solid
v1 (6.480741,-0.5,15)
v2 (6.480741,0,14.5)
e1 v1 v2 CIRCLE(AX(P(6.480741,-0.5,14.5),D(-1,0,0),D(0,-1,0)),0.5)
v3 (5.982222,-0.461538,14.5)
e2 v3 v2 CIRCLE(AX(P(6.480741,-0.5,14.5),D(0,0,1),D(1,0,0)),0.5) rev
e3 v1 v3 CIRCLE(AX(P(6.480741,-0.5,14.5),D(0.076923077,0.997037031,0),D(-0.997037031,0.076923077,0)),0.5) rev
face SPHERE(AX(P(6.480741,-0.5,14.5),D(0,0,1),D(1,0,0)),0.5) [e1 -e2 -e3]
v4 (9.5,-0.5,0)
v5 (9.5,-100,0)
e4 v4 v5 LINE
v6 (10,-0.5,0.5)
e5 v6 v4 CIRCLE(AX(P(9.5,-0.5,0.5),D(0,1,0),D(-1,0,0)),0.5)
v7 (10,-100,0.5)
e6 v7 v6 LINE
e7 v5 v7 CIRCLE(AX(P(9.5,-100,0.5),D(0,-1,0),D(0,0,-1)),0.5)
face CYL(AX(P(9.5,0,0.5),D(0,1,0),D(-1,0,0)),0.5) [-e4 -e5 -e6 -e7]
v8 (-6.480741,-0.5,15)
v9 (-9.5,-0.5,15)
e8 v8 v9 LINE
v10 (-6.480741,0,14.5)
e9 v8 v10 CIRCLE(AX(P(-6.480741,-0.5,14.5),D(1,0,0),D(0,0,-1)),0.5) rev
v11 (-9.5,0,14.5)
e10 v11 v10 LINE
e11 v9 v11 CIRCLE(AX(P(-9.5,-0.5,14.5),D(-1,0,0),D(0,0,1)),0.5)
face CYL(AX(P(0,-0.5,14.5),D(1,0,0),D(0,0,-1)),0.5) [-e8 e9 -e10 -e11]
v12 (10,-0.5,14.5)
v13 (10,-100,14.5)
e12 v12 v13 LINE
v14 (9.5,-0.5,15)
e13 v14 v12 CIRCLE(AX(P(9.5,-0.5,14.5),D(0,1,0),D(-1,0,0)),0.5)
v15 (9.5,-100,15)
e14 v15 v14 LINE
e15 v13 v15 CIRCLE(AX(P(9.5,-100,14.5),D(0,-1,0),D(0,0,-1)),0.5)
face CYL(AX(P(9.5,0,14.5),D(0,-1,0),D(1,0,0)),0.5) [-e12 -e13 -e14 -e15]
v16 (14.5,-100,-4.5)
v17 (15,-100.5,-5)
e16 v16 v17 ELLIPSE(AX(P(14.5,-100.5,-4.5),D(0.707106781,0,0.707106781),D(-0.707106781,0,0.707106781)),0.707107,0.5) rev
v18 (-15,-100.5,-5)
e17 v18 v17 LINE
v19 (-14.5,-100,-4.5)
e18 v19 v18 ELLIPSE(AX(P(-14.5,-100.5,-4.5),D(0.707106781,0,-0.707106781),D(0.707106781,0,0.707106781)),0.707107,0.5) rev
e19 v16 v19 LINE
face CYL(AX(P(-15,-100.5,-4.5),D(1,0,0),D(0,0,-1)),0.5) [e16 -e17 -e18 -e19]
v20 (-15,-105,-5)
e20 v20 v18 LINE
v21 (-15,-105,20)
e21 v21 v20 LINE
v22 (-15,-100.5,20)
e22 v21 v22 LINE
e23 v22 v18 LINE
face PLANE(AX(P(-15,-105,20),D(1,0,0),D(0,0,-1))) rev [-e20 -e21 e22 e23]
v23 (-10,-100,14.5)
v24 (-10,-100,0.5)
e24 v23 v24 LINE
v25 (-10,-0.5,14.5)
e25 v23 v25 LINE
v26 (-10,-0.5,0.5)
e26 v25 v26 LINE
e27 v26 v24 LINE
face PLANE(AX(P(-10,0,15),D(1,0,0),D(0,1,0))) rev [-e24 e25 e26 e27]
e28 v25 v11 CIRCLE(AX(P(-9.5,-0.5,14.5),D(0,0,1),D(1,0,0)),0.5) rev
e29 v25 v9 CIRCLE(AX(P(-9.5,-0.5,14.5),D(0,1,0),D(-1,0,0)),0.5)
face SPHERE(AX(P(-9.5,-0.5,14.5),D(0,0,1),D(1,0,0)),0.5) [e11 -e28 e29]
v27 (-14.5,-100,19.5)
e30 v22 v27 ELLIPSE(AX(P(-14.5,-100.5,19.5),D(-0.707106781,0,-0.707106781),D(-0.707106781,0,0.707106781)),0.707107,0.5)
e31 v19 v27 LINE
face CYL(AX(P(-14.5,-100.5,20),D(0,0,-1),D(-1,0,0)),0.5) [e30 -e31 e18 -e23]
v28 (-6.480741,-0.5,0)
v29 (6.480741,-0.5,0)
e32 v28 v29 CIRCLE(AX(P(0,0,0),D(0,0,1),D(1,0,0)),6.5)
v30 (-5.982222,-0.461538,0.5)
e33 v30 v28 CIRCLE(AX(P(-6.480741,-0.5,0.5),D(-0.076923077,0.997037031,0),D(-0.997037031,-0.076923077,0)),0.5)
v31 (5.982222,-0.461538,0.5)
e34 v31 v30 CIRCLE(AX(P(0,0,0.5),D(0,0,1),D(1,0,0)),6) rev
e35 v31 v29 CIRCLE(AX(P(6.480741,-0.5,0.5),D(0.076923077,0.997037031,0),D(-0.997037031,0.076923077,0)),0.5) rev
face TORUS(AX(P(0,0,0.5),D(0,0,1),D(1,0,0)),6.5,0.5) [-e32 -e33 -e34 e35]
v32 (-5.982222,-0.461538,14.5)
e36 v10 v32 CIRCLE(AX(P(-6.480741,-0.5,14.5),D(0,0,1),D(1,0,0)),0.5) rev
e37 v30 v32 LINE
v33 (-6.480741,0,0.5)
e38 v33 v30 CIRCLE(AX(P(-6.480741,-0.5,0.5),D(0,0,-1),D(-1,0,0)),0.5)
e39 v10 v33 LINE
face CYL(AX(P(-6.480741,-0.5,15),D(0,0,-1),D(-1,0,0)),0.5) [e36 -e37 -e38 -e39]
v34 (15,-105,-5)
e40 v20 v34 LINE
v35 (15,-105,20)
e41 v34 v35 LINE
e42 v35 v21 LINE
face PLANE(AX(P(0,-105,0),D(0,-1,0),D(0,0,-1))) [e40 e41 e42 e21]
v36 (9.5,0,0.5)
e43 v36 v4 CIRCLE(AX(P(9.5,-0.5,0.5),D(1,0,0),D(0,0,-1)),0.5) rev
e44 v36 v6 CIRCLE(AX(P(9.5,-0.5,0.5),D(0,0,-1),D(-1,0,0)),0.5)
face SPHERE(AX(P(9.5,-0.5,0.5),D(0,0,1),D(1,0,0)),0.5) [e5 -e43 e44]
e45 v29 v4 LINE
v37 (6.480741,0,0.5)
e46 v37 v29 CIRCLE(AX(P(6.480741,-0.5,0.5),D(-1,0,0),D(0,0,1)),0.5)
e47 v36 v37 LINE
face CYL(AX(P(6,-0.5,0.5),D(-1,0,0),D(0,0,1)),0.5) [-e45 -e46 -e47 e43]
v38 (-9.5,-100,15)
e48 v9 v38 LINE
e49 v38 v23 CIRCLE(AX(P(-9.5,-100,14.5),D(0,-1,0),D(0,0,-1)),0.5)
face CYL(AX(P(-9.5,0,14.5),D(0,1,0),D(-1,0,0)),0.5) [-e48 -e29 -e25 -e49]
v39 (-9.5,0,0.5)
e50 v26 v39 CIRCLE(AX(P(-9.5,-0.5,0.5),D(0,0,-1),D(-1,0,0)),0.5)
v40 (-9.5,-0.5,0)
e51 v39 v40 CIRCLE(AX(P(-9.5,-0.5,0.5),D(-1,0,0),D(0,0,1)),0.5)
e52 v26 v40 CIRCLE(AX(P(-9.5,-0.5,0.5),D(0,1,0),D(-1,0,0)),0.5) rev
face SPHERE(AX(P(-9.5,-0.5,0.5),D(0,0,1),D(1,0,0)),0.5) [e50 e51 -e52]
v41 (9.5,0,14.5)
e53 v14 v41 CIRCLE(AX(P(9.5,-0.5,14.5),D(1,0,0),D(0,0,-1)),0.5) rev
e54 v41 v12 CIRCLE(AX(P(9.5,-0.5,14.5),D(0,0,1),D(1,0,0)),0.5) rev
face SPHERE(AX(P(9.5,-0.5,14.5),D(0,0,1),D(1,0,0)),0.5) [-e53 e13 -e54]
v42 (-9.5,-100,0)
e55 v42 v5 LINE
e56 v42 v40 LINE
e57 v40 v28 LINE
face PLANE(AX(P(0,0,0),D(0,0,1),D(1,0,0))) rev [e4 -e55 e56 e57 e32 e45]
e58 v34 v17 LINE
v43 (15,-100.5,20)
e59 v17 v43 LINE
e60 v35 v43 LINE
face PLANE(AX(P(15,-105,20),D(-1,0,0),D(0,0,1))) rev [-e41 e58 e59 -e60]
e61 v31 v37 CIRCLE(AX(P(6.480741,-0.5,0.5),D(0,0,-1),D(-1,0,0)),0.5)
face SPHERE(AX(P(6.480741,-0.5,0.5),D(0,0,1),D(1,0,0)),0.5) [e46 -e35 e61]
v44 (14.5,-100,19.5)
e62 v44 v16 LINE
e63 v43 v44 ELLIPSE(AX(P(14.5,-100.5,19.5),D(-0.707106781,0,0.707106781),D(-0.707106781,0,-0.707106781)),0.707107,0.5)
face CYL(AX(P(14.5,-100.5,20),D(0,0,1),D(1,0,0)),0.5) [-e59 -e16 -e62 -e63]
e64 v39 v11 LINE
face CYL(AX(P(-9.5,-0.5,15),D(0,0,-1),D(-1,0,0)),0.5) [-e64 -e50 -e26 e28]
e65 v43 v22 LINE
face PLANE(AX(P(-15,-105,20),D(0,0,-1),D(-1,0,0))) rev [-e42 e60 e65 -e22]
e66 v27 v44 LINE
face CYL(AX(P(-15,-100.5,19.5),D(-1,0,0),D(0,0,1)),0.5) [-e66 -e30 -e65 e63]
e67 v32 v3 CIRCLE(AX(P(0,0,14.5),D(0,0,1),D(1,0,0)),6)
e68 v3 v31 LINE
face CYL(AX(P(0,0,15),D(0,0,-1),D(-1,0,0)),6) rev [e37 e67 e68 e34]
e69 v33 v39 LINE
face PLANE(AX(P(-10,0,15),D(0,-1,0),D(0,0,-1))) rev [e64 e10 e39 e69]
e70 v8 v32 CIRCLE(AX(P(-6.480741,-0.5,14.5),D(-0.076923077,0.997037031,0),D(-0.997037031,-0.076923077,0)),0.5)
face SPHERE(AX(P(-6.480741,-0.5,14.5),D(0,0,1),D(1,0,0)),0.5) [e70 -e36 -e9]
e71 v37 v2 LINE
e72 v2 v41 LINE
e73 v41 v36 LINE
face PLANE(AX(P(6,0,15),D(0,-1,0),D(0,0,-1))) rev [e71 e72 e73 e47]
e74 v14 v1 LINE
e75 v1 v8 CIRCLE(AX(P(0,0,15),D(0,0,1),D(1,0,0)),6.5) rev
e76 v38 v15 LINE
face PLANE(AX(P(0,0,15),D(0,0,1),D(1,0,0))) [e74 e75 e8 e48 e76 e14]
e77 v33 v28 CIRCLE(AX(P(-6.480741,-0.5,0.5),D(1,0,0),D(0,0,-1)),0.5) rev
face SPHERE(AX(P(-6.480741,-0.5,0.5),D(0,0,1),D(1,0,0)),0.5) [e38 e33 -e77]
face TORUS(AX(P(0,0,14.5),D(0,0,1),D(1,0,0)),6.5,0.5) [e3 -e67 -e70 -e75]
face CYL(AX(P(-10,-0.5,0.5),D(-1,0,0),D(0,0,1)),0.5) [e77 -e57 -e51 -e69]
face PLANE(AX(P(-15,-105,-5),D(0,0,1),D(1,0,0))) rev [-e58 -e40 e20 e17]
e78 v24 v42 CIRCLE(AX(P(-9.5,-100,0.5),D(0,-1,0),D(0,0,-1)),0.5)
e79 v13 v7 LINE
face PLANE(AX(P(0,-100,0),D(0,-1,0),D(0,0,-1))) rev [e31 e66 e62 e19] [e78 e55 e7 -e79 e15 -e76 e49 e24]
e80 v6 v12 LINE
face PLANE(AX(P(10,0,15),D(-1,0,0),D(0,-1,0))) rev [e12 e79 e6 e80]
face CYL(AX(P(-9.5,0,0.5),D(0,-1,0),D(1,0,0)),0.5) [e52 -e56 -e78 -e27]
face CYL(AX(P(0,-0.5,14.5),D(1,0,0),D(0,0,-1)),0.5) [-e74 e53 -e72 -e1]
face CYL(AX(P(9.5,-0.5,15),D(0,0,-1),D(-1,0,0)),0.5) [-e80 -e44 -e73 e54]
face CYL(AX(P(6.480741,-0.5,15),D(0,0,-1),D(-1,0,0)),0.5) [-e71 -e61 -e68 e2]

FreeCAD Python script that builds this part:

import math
import FreeCAD as App
import Part
import Sketcher
from FreeCAD import Vector


def edges_at(feature, points):
    """Names of the edges that pass closest to the given points."""
    edges = feature.Shape.Edges
    near = lambda p: min(range(len(edges)), key=lambda i: edges[i].distToShape(Part.Vertex(*p))[0])
    return sorted({f"Edge{near(p) + 1}" for p in points})


def add_polygon(sketch, points):
    """Adds a closed chain of lines whose ends are joined by coincident constraints."""
    first, n = sketch.GeometryCount, len(points)
    for a, b in zip(points, points[1:] + points[:1]):
        sketch.addGeometry(Part.LineSegment(App.Vector(*a, 0), App.Vector(*b, 0)), False)
    for i in range(n):
        sketch.addConstraint(Sketcher.Constraint("Coincident", first + i, 2, first + (i + 1) % n, 1))

doc = App.newDocument("Part")
body = doc.addObject("PartDesign::Body", "Body")

# Sketch on XY plane
sketch1 = body.newObject("Sketcher::SketchObject", "Sketch")
sketch1.AttachmentSupport = (doc.getObject("XY_Plane"), [""])
sketch1.MapMode = "FlatFace"
sketch1.addGeometry(Part.LineSegment(Vector(10, 0, 0), Vector(6, 0, 0)), False)
sketch1.addGeometry(Part.ArcOfCircle(Part.Circle(Vector(0, 0, 0), Vector(0, 0, 1), 6), math.radians(180), math.radians(360)), False)
sketch1.addGeometry(Part.LineSegment(Vector(-6, 0, 0), Vector(-10, 0, 0)), False)
sketch1.addGeometry(Part.LineSegment(Vector(-10, 0, 0), Vector(-10, -100, 0)), False)
sketch1.addGeometry(Part.LineSegment(Vector(-10, -100, 0), Vector(10, -100, 0)), False)
sketch1.addGeometry(Part.LineSegment(Vector(10, -100, 0), Vector(10, 0, 0)), False)
sketch1.addConstraint(Sketcher.Constraint("Coincident", 0, 2, 1, 2))
sketch1.addConstraint(Sketcher.Constraint("Coincident", 1, 1, 2, 1))
sketch1.addConstraint(Sketcher.Constraint("Coincident", 2, 2, 3, 1))
sketch1.addConstraint(Sketcher.Constraint("Coincident", 3, 2, 4, 1))
sketch1.addConstraint(Sketcher.Constraint("Coincident", 4, 2, 5, 1))
sketch1.addConstraint(Sketcher.Constraint("Coincident", 5, 2, 0, 1))
sketch1.addConstraint(Sketcher.Constraint("Horizontal", 0))
sketch1.addConstraint(Sketcher.Constraint("Horizontal", 2))
sketch1.addConstraint(Sketcher.Constraint("Vertical", 3))
sketch1.addConstraint(Sketcher.Constraint("Horizontal", 4))
sketch1.addConstraint(Sketcher.Constraint("Vertical", 5))
sketch1.addConstraint(Sketcher.Constraint("Coincident", 1, 3, -1, 1))
sketch1.addConstraint(Sketcher.Constraint("Symmetric", 2, 2, 5, 2, -1, 1))
sketch1.addConstraint(Sketcher.Constraint("PointOnObject", 0, 2, -1))
sketch1.addConstraint(Sketcher.Constraint("Radius", 1, 6.0))
sketch1.addConstraint(Sketcher.Constraint("DistanceX", 0, 2, 0, 1, 4.0))
sketch1.addConstraint(Sketcher.Constraint("DistanceY", 3, 2, 3, 1, 100.0))
pad1 = body.newObject("PartDesign::Pad", "Pad")
pad1.Profile = sketch1
pad1.Length = 15

# Sketch on XZ plane
sketch2 = body.newObject("Sketcher::SketchObject", "Sketch001")
sketch2.AttachmentSupport = (doc.getObject("XZ_Plane"), [""])
sketch2.MapMode = "FlatFace"
sketch2.AttachmentOffset = App.Placement(Vector(0, 0, 100), App.Rotation())
add_polygon(sketch2, [(-15, 20), (-15, -5), (15, -5), (15, 20)])  # lines 0-3
sketch2.addConstraint(Sketcher.Constraint("Vertical", 0))
sketch2.addConstraint(Sketcher.Constraint("Horizontal", 1))
sketch2.addConstraint(Sketcher.Constraint("Vertical", 2))
sketch2.addConstraint(Sketcher.Constraint("Horizontal", 3))
sketch2.addConstraint(Sketcher.Constraint("DistanceX", 1, 1, 1, 2, 30.0))
sketch2.addConstraint(Sketcher.Constraint("DistanceY", 0, 2, 0, 1, 25.0))
sketch2.addConstraint(Sketcher.Constraint("DistanceX", 0, 2, -1, 1, 15.0))
sketch2.addConstraint(Sketcher.Constraint("DistanceY", 0, 2, -1, 1, 5.0))
pad2 = body.newObject("PartDesign::Pad", "Pad001")
pad2.Profile = sketch2
pad2.Length = 5
doc.recompute()

fillet = body.newObject("PartDesign::Fillet", "Fillet")
fillet.Base = (pad2, edges_at(pad2, [
    (10, -50, 15),
    (-10, 0, 7.5),
    (-6, 0, 7.5),
    (6, 0, 7.5),
    (10, 0, 7.5),
    (8, 0, 15),
    (0, -6, 15),
    (-15, -100, 7.5),
    (-8, 0, 15),
    (0, -100, -5),
    (15, -100, 7.5),
    (0, -100, 20),
    (-10, -50, 15),
    (-8, 0, 0),
    (0, -6, 0),
    (8, 0, 0),
    (10, -50, 0),
    (-10, -50, 0),
]))
fillet.Radius = 0.5

doc.recompute()
